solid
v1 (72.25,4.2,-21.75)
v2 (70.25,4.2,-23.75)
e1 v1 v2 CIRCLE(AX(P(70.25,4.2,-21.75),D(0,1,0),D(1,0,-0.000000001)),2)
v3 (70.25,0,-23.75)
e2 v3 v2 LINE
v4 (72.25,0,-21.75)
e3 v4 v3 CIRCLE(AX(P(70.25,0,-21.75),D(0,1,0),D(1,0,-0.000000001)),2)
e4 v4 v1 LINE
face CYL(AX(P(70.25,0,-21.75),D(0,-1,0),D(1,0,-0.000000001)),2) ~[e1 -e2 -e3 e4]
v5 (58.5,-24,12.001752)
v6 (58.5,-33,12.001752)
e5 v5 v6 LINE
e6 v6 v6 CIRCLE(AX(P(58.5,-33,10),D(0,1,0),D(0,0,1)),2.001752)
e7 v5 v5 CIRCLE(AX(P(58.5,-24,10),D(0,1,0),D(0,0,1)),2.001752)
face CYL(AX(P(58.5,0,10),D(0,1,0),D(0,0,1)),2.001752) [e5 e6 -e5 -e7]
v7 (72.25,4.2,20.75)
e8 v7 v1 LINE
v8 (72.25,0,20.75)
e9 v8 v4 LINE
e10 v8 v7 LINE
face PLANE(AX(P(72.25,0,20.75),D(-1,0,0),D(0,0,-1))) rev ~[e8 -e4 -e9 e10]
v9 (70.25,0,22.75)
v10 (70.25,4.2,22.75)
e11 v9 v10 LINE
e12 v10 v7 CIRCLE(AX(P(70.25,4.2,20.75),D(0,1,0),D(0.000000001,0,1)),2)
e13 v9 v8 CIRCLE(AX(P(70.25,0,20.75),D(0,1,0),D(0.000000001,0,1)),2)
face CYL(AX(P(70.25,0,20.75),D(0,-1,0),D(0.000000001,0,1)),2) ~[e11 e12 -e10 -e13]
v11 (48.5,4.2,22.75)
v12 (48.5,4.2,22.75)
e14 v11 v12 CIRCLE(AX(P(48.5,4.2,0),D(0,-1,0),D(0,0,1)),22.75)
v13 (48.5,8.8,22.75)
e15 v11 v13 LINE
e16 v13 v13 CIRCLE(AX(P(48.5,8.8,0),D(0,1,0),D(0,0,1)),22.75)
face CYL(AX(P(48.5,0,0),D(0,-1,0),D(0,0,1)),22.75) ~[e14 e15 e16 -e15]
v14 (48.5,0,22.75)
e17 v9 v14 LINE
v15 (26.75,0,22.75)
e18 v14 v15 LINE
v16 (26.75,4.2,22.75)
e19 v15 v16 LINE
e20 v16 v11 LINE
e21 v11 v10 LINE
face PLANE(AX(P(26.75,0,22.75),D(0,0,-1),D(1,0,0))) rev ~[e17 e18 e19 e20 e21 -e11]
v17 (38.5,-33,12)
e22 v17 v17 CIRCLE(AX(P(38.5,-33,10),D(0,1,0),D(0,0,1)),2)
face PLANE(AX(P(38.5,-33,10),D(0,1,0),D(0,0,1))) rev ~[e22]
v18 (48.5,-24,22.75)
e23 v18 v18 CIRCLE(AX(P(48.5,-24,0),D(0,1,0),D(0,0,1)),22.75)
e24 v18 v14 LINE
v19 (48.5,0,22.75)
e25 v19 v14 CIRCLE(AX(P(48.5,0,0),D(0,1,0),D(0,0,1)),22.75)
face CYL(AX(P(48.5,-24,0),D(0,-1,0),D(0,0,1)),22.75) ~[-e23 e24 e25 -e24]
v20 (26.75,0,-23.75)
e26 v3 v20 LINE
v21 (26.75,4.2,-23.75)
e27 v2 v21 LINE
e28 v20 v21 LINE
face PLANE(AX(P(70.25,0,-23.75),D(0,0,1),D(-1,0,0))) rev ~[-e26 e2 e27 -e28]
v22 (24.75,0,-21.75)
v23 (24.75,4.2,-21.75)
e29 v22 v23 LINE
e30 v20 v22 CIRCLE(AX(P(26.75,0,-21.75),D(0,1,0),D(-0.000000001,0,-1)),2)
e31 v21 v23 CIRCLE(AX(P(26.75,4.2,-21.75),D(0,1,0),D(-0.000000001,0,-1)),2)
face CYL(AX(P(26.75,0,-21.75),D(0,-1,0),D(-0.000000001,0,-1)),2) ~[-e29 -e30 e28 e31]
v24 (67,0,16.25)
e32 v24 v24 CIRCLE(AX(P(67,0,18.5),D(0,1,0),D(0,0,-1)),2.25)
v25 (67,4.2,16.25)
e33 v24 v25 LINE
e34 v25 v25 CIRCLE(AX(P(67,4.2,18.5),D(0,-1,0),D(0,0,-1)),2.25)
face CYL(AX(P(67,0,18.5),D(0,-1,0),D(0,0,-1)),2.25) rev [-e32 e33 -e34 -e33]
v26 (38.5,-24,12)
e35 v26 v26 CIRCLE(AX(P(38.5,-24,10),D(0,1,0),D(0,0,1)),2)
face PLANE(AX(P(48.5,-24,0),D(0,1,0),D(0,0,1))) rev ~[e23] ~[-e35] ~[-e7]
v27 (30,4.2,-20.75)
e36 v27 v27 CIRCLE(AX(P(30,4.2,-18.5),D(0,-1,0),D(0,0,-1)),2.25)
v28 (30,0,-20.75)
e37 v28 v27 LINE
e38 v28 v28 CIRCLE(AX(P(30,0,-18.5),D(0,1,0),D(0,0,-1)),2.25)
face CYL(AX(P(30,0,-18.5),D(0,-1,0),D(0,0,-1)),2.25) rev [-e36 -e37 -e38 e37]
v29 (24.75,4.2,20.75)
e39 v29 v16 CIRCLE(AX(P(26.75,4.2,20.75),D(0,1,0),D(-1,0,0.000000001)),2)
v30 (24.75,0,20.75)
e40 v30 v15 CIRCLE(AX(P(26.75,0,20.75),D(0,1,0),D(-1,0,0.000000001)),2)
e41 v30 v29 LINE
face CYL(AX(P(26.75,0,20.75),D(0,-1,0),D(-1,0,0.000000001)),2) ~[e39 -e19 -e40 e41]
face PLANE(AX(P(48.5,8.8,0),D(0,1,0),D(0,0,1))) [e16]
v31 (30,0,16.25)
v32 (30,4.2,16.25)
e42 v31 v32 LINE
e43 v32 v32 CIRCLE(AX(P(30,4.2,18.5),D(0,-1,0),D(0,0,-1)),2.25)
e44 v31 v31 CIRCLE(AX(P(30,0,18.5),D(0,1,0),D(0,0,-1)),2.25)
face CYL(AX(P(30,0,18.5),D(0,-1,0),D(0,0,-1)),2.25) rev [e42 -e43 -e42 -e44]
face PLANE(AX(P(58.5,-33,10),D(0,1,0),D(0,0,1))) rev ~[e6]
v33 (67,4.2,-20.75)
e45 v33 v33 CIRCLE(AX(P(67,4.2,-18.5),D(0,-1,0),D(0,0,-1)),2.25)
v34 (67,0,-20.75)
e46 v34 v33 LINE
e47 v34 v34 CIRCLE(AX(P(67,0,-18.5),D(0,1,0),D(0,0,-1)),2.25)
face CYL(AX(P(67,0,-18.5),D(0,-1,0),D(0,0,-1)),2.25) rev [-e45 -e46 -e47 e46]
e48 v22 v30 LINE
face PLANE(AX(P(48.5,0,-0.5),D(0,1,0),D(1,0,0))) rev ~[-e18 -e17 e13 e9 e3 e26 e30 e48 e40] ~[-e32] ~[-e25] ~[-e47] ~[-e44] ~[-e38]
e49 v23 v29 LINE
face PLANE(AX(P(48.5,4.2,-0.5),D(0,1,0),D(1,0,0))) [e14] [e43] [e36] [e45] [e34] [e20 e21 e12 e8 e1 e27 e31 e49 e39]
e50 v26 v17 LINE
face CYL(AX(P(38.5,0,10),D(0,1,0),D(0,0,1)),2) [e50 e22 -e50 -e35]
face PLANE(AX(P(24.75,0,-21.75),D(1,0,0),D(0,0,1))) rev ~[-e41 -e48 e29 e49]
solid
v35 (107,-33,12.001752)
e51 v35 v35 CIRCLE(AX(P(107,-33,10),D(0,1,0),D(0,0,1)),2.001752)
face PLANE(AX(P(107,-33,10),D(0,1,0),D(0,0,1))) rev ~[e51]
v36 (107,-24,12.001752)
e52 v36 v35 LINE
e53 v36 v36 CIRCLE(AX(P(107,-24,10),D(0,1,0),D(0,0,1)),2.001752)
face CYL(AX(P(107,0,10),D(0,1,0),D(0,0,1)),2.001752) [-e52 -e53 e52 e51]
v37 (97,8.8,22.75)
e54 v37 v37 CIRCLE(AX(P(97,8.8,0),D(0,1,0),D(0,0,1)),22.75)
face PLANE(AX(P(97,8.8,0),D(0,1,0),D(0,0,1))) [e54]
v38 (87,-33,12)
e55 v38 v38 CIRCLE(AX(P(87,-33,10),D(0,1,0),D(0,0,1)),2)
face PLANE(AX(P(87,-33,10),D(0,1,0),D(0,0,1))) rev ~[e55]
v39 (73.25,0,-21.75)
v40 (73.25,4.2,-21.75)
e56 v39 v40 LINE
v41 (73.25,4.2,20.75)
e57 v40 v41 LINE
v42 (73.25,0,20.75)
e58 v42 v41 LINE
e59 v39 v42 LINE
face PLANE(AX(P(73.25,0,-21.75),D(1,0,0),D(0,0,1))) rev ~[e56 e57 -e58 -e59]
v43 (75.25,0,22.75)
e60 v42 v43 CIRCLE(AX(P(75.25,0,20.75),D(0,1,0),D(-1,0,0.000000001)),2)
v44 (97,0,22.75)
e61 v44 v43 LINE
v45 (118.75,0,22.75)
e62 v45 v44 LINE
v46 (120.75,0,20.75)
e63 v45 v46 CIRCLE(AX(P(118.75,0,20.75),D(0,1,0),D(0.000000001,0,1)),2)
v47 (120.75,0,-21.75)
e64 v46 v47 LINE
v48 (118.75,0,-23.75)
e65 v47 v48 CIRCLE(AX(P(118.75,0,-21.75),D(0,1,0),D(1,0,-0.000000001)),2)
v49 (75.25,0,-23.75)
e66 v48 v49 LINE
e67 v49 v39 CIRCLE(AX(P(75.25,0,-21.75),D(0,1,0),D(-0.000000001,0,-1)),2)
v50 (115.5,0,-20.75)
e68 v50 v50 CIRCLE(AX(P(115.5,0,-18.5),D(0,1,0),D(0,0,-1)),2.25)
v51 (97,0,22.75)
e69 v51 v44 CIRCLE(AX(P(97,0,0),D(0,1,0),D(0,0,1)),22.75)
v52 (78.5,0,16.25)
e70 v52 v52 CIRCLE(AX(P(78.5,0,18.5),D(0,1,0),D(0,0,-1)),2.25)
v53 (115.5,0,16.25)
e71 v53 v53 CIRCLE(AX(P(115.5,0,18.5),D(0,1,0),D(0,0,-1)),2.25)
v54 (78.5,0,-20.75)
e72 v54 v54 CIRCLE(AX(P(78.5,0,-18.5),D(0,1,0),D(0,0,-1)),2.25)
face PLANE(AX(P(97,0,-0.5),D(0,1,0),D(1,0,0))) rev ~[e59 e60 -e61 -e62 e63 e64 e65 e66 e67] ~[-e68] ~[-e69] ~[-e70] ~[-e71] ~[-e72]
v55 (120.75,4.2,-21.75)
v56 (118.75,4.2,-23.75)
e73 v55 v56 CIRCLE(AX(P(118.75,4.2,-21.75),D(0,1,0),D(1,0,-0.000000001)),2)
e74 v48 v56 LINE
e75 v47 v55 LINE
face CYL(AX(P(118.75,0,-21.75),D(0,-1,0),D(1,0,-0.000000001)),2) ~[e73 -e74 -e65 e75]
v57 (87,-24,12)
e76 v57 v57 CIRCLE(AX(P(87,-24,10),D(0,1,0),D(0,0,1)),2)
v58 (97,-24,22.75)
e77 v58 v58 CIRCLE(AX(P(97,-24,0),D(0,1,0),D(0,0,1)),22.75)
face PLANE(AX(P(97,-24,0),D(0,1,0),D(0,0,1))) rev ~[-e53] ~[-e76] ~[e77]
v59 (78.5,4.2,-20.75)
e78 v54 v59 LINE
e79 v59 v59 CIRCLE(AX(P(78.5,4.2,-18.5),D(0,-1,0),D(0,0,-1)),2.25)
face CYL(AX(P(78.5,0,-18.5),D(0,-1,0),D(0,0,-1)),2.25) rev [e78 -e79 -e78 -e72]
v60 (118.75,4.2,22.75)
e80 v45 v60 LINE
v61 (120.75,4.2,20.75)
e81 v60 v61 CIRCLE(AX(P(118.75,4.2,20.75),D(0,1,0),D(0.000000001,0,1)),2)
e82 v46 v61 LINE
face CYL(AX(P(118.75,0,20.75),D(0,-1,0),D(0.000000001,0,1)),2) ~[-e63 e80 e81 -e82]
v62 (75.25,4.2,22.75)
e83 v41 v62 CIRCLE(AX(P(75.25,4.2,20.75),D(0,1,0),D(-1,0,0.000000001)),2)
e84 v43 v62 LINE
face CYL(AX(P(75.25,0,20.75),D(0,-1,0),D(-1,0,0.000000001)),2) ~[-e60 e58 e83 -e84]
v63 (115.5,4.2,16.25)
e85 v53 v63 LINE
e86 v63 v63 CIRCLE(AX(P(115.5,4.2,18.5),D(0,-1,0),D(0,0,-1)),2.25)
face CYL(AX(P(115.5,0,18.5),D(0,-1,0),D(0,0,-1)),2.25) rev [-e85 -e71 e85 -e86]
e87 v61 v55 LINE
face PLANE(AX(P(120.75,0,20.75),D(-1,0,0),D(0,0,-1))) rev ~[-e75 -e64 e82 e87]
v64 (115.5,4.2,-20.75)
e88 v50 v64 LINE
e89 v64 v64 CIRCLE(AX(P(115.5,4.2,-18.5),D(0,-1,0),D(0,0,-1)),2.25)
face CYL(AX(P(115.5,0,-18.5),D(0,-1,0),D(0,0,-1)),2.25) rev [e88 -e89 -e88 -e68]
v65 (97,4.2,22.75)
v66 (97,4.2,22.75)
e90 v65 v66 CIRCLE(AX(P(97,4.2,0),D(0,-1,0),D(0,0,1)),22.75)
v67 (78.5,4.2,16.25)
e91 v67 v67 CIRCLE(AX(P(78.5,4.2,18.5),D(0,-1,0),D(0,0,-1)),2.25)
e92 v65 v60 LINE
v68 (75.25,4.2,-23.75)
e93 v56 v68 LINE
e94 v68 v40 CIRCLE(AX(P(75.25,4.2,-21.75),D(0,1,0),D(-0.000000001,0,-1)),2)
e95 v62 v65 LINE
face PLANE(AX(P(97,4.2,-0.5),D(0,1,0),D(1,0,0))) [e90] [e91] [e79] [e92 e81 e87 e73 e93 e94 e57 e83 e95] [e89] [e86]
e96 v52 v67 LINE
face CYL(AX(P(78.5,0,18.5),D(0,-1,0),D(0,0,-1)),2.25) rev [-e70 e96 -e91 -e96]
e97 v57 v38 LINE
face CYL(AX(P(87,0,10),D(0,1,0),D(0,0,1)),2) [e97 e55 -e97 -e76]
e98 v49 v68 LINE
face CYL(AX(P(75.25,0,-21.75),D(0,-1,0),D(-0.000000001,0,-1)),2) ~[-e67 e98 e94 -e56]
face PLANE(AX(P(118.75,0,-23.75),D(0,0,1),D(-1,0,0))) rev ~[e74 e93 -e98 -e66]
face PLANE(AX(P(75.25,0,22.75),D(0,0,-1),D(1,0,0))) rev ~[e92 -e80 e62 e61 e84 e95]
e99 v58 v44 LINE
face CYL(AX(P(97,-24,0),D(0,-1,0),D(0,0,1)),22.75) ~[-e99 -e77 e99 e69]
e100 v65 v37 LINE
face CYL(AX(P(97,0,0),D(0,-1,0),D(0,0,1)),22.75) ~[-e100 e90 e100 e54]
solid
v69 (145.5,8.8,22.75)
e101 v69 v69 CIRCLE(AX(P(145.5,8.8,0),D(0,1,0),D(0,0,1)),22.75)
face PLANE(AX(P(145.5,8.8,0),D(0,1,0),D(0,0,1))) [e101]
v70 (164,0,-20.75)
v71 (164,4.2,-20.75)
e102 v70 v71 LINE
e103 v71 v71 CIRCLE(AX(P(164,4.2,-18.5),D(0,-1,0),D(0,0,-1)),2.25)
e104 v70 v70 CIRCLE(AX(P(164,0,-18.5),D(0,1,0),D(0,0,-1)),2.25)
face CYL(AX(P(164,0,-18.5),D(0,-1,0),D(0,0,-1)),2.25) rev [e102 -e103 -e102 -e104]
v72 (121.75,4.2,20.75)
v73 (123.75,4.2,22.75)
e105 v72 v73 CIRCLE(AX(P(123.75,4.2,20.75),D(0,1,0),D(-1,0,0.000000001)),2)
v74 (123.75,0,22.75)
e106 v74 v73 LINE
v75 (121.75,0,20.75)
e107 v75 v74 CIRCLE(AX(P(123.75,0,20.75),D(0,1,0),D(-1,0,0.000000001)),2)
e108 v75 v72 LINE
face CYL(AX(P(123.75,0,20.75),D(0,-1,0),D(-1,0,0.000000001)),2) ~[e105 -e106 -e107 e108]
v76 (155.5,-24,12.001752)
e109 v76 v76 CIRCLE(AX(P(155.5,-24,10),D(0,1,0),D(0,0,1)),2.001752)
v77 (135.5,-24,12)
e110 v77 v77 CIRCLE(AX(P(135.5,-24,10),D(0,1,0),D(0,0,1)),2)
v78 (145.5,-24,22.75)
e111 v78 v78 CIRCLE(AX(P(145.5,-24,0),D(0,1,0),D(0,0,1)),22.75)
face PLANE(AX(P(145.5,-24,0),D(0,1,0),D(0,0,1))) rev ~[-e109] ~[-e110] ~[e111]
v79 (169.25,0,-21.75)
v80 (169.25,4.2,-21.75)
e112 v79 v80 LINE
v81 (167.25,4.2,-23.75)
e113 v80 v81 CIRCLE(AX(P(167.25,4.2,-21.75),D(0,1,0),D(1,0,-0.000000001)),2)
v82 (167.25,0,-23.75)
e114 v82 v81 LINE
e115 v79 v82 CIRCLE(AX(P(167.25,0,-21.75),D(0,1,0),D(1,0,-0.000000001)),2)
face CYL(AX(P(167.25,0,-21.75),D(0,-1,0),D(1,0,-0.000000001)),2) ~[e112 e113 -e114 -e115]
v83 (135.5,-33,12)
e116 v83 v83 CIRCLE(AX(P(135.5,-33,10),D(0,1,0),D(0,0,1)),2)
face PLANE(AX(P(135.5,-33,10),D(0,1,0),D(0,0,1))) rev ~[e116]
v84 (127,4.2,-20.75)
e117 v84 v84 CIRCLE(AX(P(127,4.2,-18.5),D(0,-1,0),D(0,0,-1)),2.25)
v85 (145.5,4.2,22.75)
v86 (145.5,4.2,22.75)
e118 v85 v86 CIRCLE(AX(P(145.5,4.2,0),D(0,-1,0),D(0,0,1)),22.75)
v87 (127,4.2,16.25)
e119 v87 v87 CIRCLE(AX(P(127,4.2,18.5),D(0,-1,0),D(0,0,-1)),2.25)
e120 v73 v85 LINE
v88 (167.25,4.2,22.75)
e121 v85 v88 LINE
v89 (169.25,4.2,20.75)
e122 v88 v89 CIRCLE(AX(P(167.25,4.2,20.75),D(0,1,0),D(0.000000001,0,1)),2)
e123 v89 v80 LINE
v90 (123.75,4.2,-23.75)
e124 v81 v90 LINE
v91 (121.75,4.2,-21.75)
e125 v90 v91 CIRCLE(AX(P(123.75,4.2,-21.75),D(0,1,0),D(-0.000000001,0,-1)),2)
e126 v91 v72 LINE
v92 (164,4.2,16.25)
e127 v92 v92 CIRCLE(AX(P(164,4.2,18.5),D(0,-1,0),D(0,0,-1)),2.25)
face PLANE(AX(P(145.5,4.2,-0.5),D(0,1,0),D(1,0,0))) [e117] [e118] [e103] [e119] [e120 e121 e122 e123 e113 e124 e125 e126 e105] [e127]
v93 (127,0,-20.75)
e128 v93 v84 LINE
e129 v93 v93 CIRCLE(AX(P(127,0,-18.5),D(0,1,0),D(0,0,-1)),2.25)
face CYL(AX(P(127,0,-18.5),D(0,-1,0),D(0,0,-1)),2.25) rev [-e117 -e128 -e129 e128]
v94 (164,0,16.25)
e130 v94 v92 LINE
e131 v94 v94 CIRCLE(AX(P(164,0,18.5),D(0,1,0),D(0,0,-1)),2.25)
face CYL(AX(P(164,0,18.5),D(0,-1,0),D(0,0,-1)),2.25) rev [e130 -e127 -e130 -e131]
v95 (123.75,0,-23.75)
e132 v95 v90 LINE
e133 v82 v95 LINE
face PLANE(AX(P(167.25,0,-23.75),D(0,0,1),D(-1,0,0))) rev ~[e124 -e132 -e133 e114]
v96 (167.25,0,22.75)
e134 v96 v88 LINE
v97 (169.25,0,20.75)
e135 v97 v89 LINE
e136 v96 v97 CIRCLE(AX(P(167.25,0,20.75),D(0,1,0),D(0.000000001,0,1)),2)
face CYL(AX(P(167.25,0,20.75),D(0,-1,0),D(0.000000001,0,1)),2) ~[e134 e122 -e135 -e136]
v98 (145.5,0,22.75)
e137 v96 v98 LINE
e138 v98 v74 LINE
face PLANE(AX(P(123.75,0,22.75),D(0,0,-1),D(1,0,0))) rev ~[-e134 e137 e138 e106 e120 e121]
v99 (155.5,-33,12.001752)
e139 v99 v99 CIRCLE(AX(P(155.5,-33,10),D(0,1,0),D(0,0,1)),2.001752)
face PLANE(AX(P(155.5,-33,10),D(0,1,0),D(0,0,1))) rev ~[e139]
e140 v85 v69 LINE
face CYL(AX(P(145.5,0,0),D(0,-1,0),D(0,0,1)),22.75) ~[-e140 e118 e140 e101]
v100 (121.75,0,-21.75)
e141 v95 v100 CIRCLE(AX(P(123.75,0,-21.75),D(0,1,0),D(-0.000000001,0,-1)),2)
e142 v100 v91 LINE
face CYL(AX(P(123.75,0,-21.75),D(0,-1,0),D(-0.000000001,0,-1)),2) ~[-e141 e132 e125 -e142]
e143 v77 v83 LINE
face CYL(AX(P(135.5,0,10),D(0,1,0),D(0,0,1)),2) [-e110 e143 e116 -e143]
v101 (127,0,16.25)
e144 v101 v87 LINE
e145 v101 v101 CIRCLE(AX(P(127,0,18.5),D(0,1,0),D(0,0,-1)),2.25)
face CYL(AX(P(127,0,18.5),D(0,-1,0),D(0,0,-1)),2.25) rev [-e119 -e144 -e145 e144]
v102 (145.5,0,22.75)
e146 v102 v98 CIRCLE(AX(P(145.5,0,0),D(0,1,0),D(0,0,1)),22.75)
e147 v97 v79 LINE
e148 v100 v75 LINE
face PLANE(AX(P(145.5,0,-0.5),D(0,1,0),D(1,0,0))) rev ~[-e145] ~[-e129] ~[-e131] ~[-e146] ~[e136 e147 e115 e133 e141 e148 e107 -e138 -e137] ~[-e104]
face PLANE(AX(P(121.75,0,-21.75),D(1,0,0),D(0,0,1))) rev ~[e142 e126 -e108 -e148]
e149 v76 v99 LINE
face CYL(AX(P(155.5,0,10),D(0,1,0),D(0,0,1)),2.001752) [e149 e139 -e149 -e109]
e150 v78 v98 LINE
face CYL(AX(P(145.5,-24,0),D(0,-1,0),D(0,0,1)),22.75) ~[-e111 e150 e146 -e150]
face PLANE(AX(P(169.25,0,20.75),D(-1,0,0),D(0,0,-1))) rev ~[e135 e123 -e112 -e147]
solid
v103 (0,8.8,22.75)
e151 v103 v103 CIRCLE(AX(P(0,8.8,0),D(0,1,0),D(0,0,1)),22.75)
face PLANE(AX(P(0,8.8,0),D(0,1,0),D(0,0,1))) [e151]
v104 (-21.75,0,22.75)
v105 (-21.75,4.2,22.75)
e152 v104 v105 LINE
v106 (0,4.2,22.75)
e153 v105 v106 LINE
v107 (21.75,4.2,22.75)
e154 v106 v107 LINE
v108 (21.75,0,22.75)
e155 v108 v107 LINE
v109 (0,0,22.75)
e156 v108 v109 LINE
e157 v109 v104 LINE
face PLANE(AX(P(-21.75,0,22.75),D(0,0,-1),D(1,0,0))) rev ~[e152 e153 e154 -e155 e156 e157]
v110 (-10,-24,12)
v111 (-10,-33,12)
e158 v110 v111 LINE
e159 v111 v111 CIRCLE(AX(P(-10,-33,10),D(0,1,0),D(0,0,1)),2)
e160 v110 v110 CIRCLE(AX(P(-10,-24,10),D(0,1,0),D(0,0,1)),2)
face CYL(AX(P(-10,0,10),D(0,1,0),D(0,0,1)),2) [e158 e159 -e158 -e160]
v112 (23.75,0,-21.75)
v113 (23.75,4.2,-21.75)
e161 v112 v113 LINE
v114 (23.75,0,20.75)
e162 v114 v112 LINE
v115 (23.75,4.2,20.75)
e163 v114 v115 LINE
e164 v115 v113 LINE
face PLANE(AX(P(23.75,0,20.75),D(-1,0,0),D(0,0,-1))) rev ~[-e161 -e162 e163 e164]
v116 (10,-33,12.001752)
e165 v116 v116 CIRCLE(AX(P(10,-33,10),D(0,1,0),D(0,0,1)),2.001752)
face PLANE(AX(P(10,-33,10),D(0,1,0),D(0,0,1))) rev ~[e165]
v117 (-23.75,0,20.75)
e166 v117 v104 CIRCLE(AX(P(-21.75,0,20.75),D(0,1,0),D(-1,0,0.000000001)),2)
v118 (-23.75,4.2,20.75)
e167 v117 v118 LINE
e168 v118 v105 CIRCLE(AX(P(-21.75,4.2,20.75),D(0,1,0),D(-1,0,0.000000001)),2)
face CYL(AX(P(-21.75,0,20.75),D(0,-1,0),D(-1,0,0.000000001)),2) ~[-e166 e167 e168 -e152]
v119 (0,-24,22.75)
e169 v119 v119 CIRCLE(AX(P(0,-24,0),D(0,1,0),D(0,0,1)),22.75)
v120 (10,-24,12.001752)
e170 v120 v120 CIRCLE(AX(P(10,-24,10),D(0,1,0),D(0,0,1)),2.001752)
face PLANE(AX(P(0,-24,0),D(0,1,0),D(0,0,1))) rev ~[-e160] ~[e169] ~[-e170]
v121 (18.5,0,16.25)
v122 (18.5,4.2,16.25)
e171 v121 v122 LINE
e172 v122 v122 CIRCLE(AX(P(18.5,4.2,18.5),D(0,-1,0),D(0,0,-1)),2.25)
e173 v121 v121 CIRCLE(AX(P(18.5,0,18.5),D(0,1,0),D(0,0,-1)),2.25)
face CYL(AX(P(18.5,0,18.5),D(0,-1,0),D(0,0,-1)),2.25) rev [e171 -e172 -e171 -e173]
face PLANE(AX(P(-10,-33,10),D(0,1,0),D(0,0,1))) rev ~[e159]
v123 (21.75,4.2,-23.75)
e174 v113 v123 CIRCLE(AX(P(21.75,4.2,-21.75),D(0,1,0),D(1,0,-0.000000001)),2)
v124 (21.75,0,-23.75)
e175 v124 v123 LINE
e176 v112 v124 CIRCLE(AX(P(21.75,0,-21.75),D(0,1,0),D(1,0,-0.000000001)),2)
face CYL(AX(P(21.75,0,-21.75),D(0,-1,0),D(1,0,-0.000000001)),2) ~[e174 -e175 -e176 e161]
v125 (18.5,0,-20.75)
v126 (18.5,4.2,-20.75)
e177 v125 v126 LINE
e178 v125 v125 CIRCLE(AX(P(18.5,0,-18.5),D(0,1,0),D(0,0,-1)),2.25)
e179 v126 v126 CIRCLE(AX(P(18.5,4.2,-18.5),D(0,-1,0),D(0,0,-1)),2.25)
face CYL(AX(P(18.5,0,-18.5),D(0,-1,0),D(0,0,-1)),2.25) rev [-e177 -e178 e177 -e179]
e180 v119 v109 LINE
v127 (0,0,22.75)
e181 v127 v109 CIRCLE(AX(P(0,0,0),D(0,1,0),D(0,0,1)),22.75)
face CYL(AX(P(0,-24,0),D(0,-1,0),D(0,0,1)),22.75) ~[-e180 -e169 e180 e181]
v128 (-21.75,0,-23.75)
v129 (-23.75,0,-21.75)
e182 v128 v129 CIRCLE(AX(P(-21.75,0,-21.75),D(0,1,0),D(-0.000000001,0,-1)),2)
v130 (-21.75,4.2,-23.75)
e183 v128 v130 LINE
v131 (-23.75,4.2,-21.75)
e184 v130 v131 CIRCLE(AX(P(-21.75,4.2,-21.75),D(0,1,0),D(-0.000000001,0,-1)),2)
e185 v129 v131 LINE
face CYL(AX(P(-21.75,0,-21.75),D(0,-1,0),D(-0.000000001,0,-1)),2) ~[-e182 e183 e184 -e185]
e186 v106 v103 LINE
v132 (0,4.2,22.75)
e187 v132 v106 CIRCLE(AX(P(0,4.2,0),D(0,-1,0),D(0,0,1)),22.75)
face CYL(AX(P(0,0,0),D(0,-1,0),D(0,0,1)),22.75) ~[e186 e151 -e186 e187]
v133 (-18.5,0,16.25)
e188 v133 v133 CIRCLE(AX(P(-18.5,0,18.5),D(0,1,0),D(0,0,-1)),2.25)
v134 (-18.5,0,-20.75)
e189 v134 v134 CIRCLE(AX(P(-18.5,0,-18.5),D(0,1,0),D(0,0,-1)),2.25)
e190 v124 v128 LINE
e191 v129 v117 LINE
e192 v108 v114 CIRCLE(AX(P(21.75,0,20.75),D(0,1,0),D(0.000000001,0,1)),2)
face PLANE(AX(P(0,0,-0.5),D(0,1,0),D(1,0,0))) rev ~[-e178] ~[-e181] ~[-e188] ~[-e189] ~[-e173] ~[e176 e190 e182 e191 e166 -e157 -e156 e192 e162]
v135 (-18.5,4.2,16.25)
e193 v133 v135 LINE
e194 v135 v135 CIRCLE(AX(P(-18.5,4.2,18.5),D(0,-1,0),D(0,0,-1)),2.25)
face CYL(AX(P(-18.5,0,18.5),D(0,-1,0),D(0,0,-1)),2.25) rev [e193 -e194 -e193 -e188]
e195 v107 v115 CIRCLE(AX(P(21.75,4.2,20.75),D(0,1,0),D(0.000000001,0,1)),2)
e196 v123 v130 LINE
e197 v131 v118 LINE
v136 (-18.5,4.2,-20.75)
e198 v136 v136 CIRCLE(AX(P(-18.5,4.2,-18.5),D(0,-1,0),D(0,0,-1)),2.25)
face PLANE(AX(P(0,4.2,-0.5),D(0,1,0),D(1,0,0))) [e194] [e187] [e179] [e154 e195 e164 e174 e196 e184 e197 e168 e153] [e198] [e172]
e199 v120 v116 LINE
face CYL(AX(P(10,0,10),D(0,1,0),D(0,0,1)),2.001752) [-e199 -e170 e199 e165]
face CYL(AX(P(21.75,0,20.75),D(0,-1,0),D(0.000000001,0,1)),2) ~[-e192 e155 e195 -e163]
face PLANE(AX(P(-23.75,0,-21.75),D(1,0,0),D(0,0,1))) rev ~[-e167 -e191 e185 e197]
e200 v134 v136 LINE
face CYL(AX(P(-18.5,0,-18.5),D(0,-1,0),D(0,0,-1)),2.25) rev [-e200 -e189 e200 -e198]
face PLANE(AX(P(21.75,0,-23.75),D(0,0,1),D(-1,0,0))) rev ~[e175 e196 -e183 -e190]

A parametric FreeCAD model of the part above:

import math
import FreeCAD as App
import Part
import Sketcher

V = App.Vector

doc = App.newDocument("Part")
params = doc.addObject("Spreadsheet::Sheet", "Params")
for row, (alias, value) in enumerate([
    ("sketch1_diameter", "45.5 mm"),
    ("pad1_length", "8.8 mm"),
    ("sketch2_diameter", "45.5 mm"),
    ("pad2_length", "8.8 mm"),
    ("sketch3_diameter", "45.5 mm"),
    ("pad3_length", "8.8 mm"),
    ("sketch4_diameter", "45.5 mm"),
    ("pad4_length", "8.8 mm"),
    ("sketch5_radius", "2 mm"),
    ("sketch5_width", "43.5 mm"),
    ("sketch5_height", "42.5 mm"),
    ("pad5_length", "4.2 mm"),
    ("sketch6_diameter", "4.5 mm"),
    ("sketch7_diameter", "4.5 mm"),
    ("sketch8_diameter", "4.5 mm"),
    ("sketch9_diameter", "4.5 mm"),
    ("sketch10_diameter", "4.5 mm"),
    ("sketch11_diameter", "4.5 mm"),
    ("sketch12_diameter", "4.5 mm"),
    ("sketch13_diameter", "4.5 mm"),
    ("sketch14_diameter", "4.5 mm"),
    ("sketch15_diameter", "4.5 mm"),
    ("sketch16_diameter", "4.5 mm"),
    ("sketch17_diameter", "4.5 mm"),
    ("sketch18_diameter", "4.5 mm"),
    ("sketch19_diameter", "4.5 mm"),
    ("sketch20_diameter", "4.5 mm"),
    ("sketch21_diameter", "4.5 mm"),
    ("sketch22_diameter", "45.5 mm"),
    ("pad6_length", "24 mm"),
    ("sketch23_diameter", "4 mm"),
    ("pad7_length", "33 mm"),
], start=1):
    params.set(f"A{row}", alias)
    params.set(f"B{row}", "=" + value)
    params.setAlias(f"B{row}", alias)

body = doc.addObject("PartDesign::Body", "Body")

# Sketch on XZ plane
sketch1 = body.newObject("Sketcher::SketchObject", "Sketch")
sketch1.AttachmentSupport = (doc.getObject("XZ_Plane"), [""])
sketch1.MapMode = "FlatFace"
sketch1.addGeometry(Part.Circle(V(0, 0, 0), V(0, 0, 1), 23), False)
sketch1.addConstraint([
    Sketcher.Constraint("Coincident", 0, 3, -1, 1),
    Sketcher.Constraint("Diameter", 0, 45.5),
])
sketch1.setExpression("Constraints[1]", "Params.sketch1_diameter")
pad1 = body.newObject("PartDesign::Pad", "Pad")
pad1.Profile = sketch1
pad1.setExpression("Length", "Params.pad1_length")
pad1.Reversed = True
body2 = doc.addObject("PartDesign::Body", "Body001")

# Sketch on XZ plane
sketch2 = body2.newObject("Sketcher::SketchObject", "Sketch001")
sketch2.AttachmentSupport = (doc.getObject("XZ_Plane001"), [""])
sketch2.MapMode = "FlatFace"
sketch2.addGeometry(Part.Circle(V(48, 0, 0), V(0, 0, 1), 23), False)
sketch2.addConstraint([
    Sketcher.Constraint("PointOnObject", 0, 3, -1),
    Sketcher.Constraint("Diameter", 0, 45.5),
    Sketcher.Constraint("DistanceX", -1, 1, 0, 3, 48.5),
])
sketch2.setExpression("Constraints[1]", "Params.sketch2_diameter")
pad2 = body2.newObject("PartDesign::Pad", "Pad001")
pad2.Profile = sketch2
pad2.setExpression("Length", "Params.pad2_length")
pad2.Reversed = True
body3 = doc.addObject("PartDesign::Body", "Body002")

# Sketch on XZ plane
sketch3 = body3.newObject("Sketcher::SketchObject", "Sketch002")
sketch3.AttachmentSupport = (doc.getObject("XZ_Plane002"), [""])
sketch3.MapMode = "FlatFace"
sketch3.addGeometry(Part.Circle(V(97, 0, 0), V(0, 0, 1), 23), False)
sketch3.addConstraint([
    Sketcher.Constraint("PointOnObject", 0, 3, -1),
    Sketcher.Constraint("Diameter", 0, 45.5),
    Sketcher.Constraint("DistanceX", -1, 1, 0, 3, 97.0),
])
sketch3.setExpression("Constraints[1]", "Params.sketch3_diameter")
pad3 = body3.newObject("PartDesign::Pad", "Pad002")
pad3.Profile = sketch3
pad3.setExpression("Length", "Params.pad3_length")
pad3.Reversed = True
body4 = doc.addObject("PartDesign::Body", "Body003")

# Sketch on XZ plane
sketch4 = body4.newObject("Sketcher::SketchObject", "Sketch003")
sketch4.AttachmentSupport = (doc.getObject("XZ_Plane003"), [""])
sketch4.MapMode = "FlatFace"
sketch4.addGeometry(Part.Circle(V(146, 0, 0), V(0, 0, 1), 23), False)
sketch4.addConstraint([
    Sketcher.Constraint("PointOnObject", 0, 3, -1),
    Sketcher.Constraint("Diameter", 0, 45.5),
    Sketcher.Constraint("DistanceX", -1, 1, 0, 3, 145.5),
])
sketch4.setExpression("Constraints[1]", "Params.sketch4_diameter")
pad4 = body4.newObject("PartDesign::Pad", "Pad003")
pad4.Profile = sketch4
pad4.setExpression("Length", "Params.pad4_length")
pad4.Reversed = True
body.AllowCompound = True
doc.recompute()

boolean = body.newObject("PartDesign::Boolean", "Boolean")
boolean.Type = "Fuse"
boolean.addObjects([body2])
doc.recompute()

boolean2 = body.newObject("PartDesign::Boolean", "Boolean001")
boolean2.Type = "Fuse"
boolean2.addObjects([body3])
doc.recompute()

boolean3 = body.newObject("PartDesign::Boolean", "Boolean002")
boolean3.Type = "Fuse"
boolean3.addObjects([body4])

# Sketch on XZ plane
sketch5 = body.newObject("Sketcher::SketchObject", "Sketch004")
sketch5.AttachmentSupport = (doc.getObject("XZ_Plane"), [""])
sketch5.MapMode = "FlatFace"
sketch5.addGeometry([
    Part.LineSegment(V(21.8, -23.8, 0), V(-21.8, -23.8, 0)),  # 0
    Part.ArcOfCircle(Part.Circle(V(-21.7, -21.7, 0), V(0, 0, 1), 2), math.radians(-180), math.radians(-90)),  # 1
    Part.LineSegment(V(-23.8, -21.8, 0), V(-23.8, 20.8, 0)),  # 2
    Part.ArcOfCircle(Part.Circle(V(-21.7, 20.7, 0), V(0, 0, 1), 2), math.radians(90), math.radians(180)),  # 3
    Part.LineSegment(V(-21.8, 22.8, 0), V(21.8, 22.8, 0)),  # 4
    Part.ArcOfCircle(Part.Circle(V(21.7, 20.7, 0), V(0, 0, 1), 2), math.radians(0), math.radians(90)),  # 5
    Part.LineSegment(V(23.8, 20.8, 0), V(23.8, -21.8, 0)),  # 6
    Part.ArcOfCircle(Part.Circle(V(21.7, -21.7, 0), V(0, 0, 1), 2), math.radians(-90), math.radians(0)),  # 7
    Part.LineSegment(V(24.8, -21.8, 0), V(24.8, 20.8, 0)),  # 8
    Part.ArcOfCircle(Part.Circle(V(26.8, 20.7, 0), V(0, 0, 1), 2), math.radians(90), math.radians(180)),  # 9
    Part.LineSegment(V(26.8, 22.8, 0), V(70.2, 22.8, 0)),  # 10
    Part.ArcOfCircle(Part.Circle(V(70.2, 20.7, 0), V(0, 0, 1), 2), math.radians(0), math.radians(90)),  # 11
    Part.LineSegment(V(72.2, 20.8, 0), V(72.2, -21.8, 0)),  # 12
    Part.ArcOfCircle(Part.Circle(V(70.2, -21.7, 0), V(0, 0, 1), 2), math.radians(-90), math.radians(0)),  # 13
    Part.LineSegment(V(70.2, -23.8, 0), V(26.8, -23.8, 0)),  # 14
    Part.ArcOfCircle(Part.Circle(V(26.8, -21.7, 0), V(0, 0, 1), 2), math.radians(-180), math.radians(-90)),  # 15
    Part.LineSegment(V(73.2, -21.8, 0), V(73.2, 20.8, 0)),  # 16
    Part.ArcOfCircle(Part.Circle(V(75.3, 20.7, 0), V(0, 0, 1), 2), math.radians(90), math.radians(180)),  # 17
    Part.LineSegment(V(75.2, 22.8, 0), V(118.8, 22.8, 0)),  # 18
    Part.ArcOfCircle(Part.Circle(V(118.7, 20.7, 0), V(0, 0, 1), 2), math.radians(0), math.radians(90)),  # 19
    Part.LineSegment(V(120.8, 20.8, 0), V(120.8, -21.8, 0)),  # 20
    Part.ArcOfCircle(Part.Circle(V(118.7, -21.7, 0), V(0, 0, 1), 2), math.radians(-90), math.radians(0)),  # 21
    Part.LineSegment(V(118.8, -23.8, 0), V(75.2, -23.8, 0)),  # 22
    Part.ArcOfCircle(Part.Circle(V(75.3, -21.7, 0), V(0, 0, 1), 2), math.radians(-180), math.radians(-90)),  # 23
    Part.LineSegment(V(121.8, -21.8, 0), V(121.8, 20.8, 0)),  # 24
    Part.ArcOfCircle(Part.Circle(V(123.8, 20.7, 0), V(0, 0, 1), 2), math.radians(90), math.radians(180)),  # 25
    Part.LineSegment(V(123.8, 22.8, 0), V(167.2, 22.8, 0)),  # 26
    Part.ArcOfCircle(Part.Circle(V(167.2, 20.7, 0), V(0, 0, 1), 2), math.radians(0), math.radians(90)),  # 27
    Part.LineSegment(V(169.2, 20.8, 0), V(169.2, -21.8, 0)),  # 28
    Part.ArcOfCircle(Part.Circle(V(167.2, -21.7, 0), V(0, 0, 1), 2), math.radians(-90), math.radians(0)),  # 29
    Part.LineSegment(V(167.2, -23.8, 0), V(123.8, -23.8, 0)),  # 30
    Part.ArcOfCircle(Part.Circle(V(123.8, -21.7, 0), V(0, 0, 1), 2), math.radians(-180), math.radians(-90)),  # 31
], False)
sketch5.addConstraint([
    Sketcher.Constraint("Tangent", 0, 2, 1, 2),
    Sketcher.Constraint("Tangent", 1, 1, 2, 1),
    Sketcher.Constraint("Tangent", 2, 2, 3, 2),
    Sketcher.Constraint("Tangent", 3, 1, 4, 1),
    Sketcher.Constraint("Tangent", 4, 2, 5, 2),
    Sketcher.Constraint("Tangent", 5, 1, 6, 1),
    Sketcher.Constraint("Tangent", 6, 2, 7, 2),
    Sketcher.Constraint("Tangent", 7, 1, 0, 1),
    Sketcher.Constraint("Tangent", 8, 2, 9, 2),
    Sketcher.Constraint("Tangent", 9, 1, 10, 1),
    Sketcher.Constraint("Tangent", 10, 2, 11, 2),
    Sketcher.Constraint("Tangent", 11, 1, 12, 1),
    Sketcher.Constraint("Tangent", 12, 2, 13, 2),
    Sketcher.Constraint("Tangent", 13, 1, 14, 1),
    Sketcher.Constraint("Tangent", 14, 2, 15, 2),
    Sketcher.Constraint("Tangent", 15, 1, 8, 1),
    Sketcher.Constraint("Tangent", 16, 2, 17, 2),
    Sketcher.Constraint("Tangent", 17, 1, 18, 1),
    Sketcher.Constraint("Tangent", 18, 2, 19, 2),
    Sketcher.Constraint("Tangent", 19, 1, 20, 1),
    Sketcher.Constraint("Tangent", 20, 2, 21, 2),
    Sketcher.Constraint("Tangent", 21, 1, 22, 1),
    Sketcher.Constraint("Tangent", 22, 2, 23, 2),
    Sketcher.Constraint("Tangent", 23, 1, 16, 1),
    Sketcher.Constraint("Tangent", 24, 2, 25, 2),
    Sketcher.Constraint("Tangent", 25, 1, 26, 1),
    Sketcher.Constraint("Tangent", 26, 2, 27, 2),
    Sketcher.Constraint("Tangent", 27, 1, 28, 1),
    Sketcher.Constraint("Tangent", 28, 2, 29, 2),
    Sketcher.Constraint("Tangent", 29, 1, 30, 1),
    Sketcher.Constraint("Tangent", 30, 2, 31, 2),
    Sketcher.Constraint("Tangent", 31, 1, 24, 1),
    Sketcher.Constraint("Horizontal", 0),
    Sketcher.Constraint("Vertical", 2),
    Sketcher.Constraint("Horizontal", 4),
    Sketcher.Constraint("Vertical", 6),
    Sketcher.Constraint("Vertical", 8),
    Sketcher.Constraint("Horizontal", 10),
    Sketcher.Constraint("Vertical", 12),
    Sketcher.Constraint("Horizontal", 14),
    Sketcher.Constraint("Vertical", 16),
    Sketcher.Constraint("Horizontal", 18),
    Sketcher.Constraint("Vertical", 20),
    Sketcher.Constraint("Horizontal", 22),
    Sketcher.Constraint("Vertical", 24),
    Sketcher.Constraint("Horizontal", 26),
    Sketcher.Constraint("Vertical", 28),
    Sketcher.Constraint("Horizontal", 30),
    Sketcher.Constraint("Equal", 1, 3),
    Sketcher.Constraint("Equal", 3, 5),
    Sketcher.Constraint("Equal", 5, 7),
    Sketcher.Constraint("Equal", 7, 9),
    Sketcher.Constraint("Equal", 9, 11),
    Sketcher.Constraint("Equal", 11, 13),
    Sketcher.Constraint("Equal", 13, 15),
    Sketcher.Constraint("Equal", 15, 17),
    Sketcher.Constraint("Equal", 17, 19),
    Sketcher.Constraint("Equal", 19, 21),
    Sketcher.Constraint("Equal", 21, 23),
    Sketcher.Constraint("Equal", 23, 25),
    Sketcher.Constraint("Equal", 25, 27),
    Sketcher.Constraint("Equal", 27, 29),
    Sketcher.Constraint("Equal", 29, 31),
    Sketcher.Constraint("Horizontal", 5, 3, 9, 3),
    Sketcher.Constraint("Horizontal", 7, 3, 13, 3),
    Sketcher.Constraint("Horizontal", 11, 3, 17, 3),
    Sketcher.Constraint("Horizontal", 15, 3, 21, 3),
    Sketcher.Constraint("Horizontal", 19, 3, 25, 3),
    Sketcher.Constraint("Horizontal", 23, 3, 29, 3),
    Sketcher.Constraint("Equal", 4, 10),
    Sketcher.Constraint("Equal", 14, 18),
    Sketcher.Constraint("Equal", 22, 26),
    Sketcher.Constraint("Radius", 1, 2.0),
    Sketcher.Constraint("DistanceX", 0, 2, 0, 1, 43.5),
    Sketcher.Constraint("DistanceY", 2, 1, 2, 2, 42.5),
    Sketcher.Constraint("DistanceX", 5, 3, 9, 3, 5.0),
    Sketcher.Constraint("DistanceX", 11, 3, 17, 3, 5.0),
    Sketcher.Constraint("DistanceX", 19, 3, 25, 3, 5.0),
    Sketcher.Constraint("DistanceX", 1, 3, -1, 1, 21.75),
    Sketcher.Constraint("DistanceY", 1, 3, -1, 1, 21.75),
])
sketch5.setExpression("Constraints[72]", "Params.sketch5_radius")
sketch5.setExpression("Constraints[73]", "Params.sketch5_width")
sketch5.setExpression("Constraints[74]", "Params.sketch5_height")
pad5 = body.newObject("PartDesign::Pad", "Pad004")
pad5.Profile = sketch5
pad5.setExpression("Length", "Params.pad5_length")
pad5.Reversed = True

# Sketch on XZ plane
sketch6 = body.newObject("Sketcher::SketchObject", "Sketch005")
sketch6.AttachmentSupport = (doc.getObject("XZ_Plane"), [""])
sketch6.MapMode = "FlatFace"
sketch6.addGeometry(Part.Circle(V(18.5, -18.5, 0), V(0, 0, 1), 2.2), False)
sketch6.addConstraint([
    Sketcher.Constraint("Diameter", 0, 4.5),
    Sketcher.Constraint("DistanceX", -1, 1, 0, 3, 18.5),
    Sketcher.Constraint("DistanceY", 0, 3, -1, 1, 18.5),
])
sketch6.setExpression("Constraints[0]", "Params.sketch6_diameter")
pocket1 = body.newObject("PartDesign::Pocket", "Pocket")
pocket1.Profile = sketch6
pocket1.Type = "UpToFirst"

# Sketch on XZ plane
sketch7 = body.newObject("Sketcher::SketchObject", "Sketch006")
sketch7.AttachmentSupport = (doc.getObject("XZ_Plane"), [""])
sketch7.MapMode = "FlatFace"
sketch7.addGeometry(Part.Circle(V(18.5, 18.5, 0), V(0, 0, 1), 2.2), False)
sketch7.addConstraint([
    Sketcher.Constraint("Diameter", 0, 4.5),
    Sketcher.Constraint("DistanceX", -1, 1, 0, 3, 18.5),
    Sketcher.Constraint("DistanceY", -1, 1, 0, 3, 18.5),
])
sketch7.setExpression("Constraints[0]", "Params.sketch7_diameter")
pocket2 = body.newObject("PartDesign::Pocket", "Pocket001")
pocket2.Profile = sketch7
pocket2.Type = "UpToFirst"

# Sketch on XZ plane
sketch8 = body.newObject("Sketcher::SketchObject", "Sketch007")
sketch8.AttachmentSupport = (doc.getObject("XZ_Plane"), [""])
sketch8.MapMode = "FlatFace"
sketch8.addGeometry(Part.Circle(V(-18.5, -18.5, 0), V(0, 0, 1), 2.2), False)
sketch8.addConstraint([
    Sketcher.Constraint("Diameter", 0, 4.5),
    Sketcher.Constraint("DistanceX", 0, 3, -1, 1, 18.5),
    Sketcher.Constraint("DistanceY", 0, 3, -1, 1, 18.5),
])
sketch8.setExpression("Constraints[0]", "Params.sketch8_diameter")
pocket3 = body.newObject("PartDesign::Pocket", "Pocket002")
pocket3.Profile = sketch8
pocket3.Type = "UpToFirst"

# Sketch on XZ plane
sketch9 = body.newObject("Sketcher::SketchObject", "Sketch008")
sketch9.AttachmentSupport = (doc.getObject("XZ_Plane"), [""])
sketch9.MapMode = "FlatFace"
sketch9.addGeometry(Part.Circle(V(-18.5, 18.5, 0), V(0, 0, 1), 2.2), False)
sketch9.addConstraint([
    Sketcher.Constraint("Diameter", 0, 4.5),
    Sketcher.Constraint("DistanceX", 0, 3, -1, 1, 18.5),
    Sketcher.Constraint("DistanceY", -1, 1, 0, 3, 18.5),
])
sketch9.setExpression("Constraints[0]", "Params.sketch9_diameter")
pocket4 = body.newObject("PartDesign::Pocket", "Pocket003")
pocket4.Profile = sketch9
pocket4.Type = "UpToFirst"

# Sketch on XZ plane
sketch10 = body.newObject("Sketcher::SketchObject", "Sketch009")
sketch10.AttachmentSupport = (doc.getObject("XZ_Plane"), [""])
sketch10.MapMode = "FlatFace"
sketch10.addGeometry(Part.Circle(V(67, 18.5, 0), V(0, 0, 1), 2.2), False)
sketch10.addConstraint([
    Sketcher.Constraint("Diameter", 0, 4.5),
    Sketcher.Constraint("DistanceX", -1, 1, 0, 3, 67.0),
    Sketcher.Constraint("DistanceY", -1, 1, 0, 3, 18.5),
])
sketch10.setExpression("Constraints[0]", "Params.sketch10_diameter")
pocket5 = body.newObject("PartDesign::Pocket", "Pocket004")
pocket5.Profile = sketch10
pocket5.Type = "UpToFirst"

# Sketch on XZ plane
sketch11 = body.newObject("Sketcher::SketchObject", "Sketch010")
sketch11.AttachmentSupport = (doc.getObject("XZ_Plane"), [""])
sketch11.MapMode = "FlatFace"
sketch11.addGeometry(Part.Circle(V(67, -18.5, 0), V(0, 0, 1), 2.2), False)
sketch11.addConstraint([
    Sketcher.Constraint("Diameter", 0, 4.5),
    Sketcher.Constraint("DistanceX", -1, 1, 0, 3, 67.0),
    Sketcher.Constraint("DistanceY", 0, 3, -1, 1, 18.5),
])
sketch11.setExpression("Constraints[0]", "Params.sketch11_diameter")
pocket6 = body.newObject("PartDesign::Pocket", "Pocket005")
pocket6.Profile = sketch11
pocket6.Type = "UpToFirst"

# Sketch on XZ plane
sketch12 = body.newObject("Sketcher::SketchObject", "Sketch011")
sketch12.AttachmentSupport = (doc.getObject("XZ_Plane"), [""])
sketch12.MapMode = "FlatFace"
sketch12.addGeometry(Part.Circle(V(30, -18.5, 0), V(0, 0, 1), 2.2), False)
sketch12.addConstraint([
    Sketcher.Constraint("Diameter", 0, 4.5),
    Sketcher.Constraint("DistanceX", -1, 1, 0, 3, 30.0),
    Sketcher.Constraint("DistanceY", 0, 3, -1, 1, 18.5),
])
sketch12.setExpression("Constraints[0]", "Params.sketch12_diameter")
pocket7 = body.newObject("PartDesign::Pocket", "Pocket006")
pocket7.Profile = sketch12
pocket7.Type = "UpToFirst"

# Sketch on XZ plane
sketch13 = body.newObject("Sketcher::SketchObject", "Sketch012")
sketch13.AttachmentSupport = (doc.getObject("XZ_Plane"), [""])
sketch13.MapMode = "FlatFace"
sketch13.addGeometry(Part.Circle(V(30, 18.5, 0), V(0, 0, 1), 2.2), False)
sketch13.addConstraint([
    Sketcher.Constraint("Diameter", 0, 4.5),
    Sketcher.Constraint("DistanceX", -1, 1, 0, 3, 30.0),
    Sketcher.Constraint("DistanceY", -1, 1, 0, 3, 18.5),
])
sketch13.setExpression("Constraints[0]", "Params.sketch13_diameter")
pocket8 = body.newObject("PartDesign::Pocket", "Pocket007")
pocket8.Profile = sketch13
pocket8.Type = "UpToFirst"

# Sketch on XZ plane
sketch14 = body.newObject("Sketcher::SketchObject", "Sketch013")
sketch14.AttachmentSupport = (doc.getObject("XZ_Plane"), [""])
sketch14.MapMode = "FlatFace"
sketch14.addGeometry(Part.Circle(V(115.5, 18.5, 0), V(0, 0, 1), 2.2), False)
sketch14.addConstraint([
    Sketcher.Constraint("Diameter", 0, 4.5),
    Sketcher.Constraint("DistanceX", -1, 1, 0, 3, 115.5),
    Sketcher.Constraint("DistanceY", -1, 1, 0, 3, 18.5),
])
sketch14.setExpression("Constraints[0]", "Params.sketch14_diameter")
pocket9 = body.newObject("PartDesign::Pocket", "Pocket008")
pocket9.Profile = sketch14
pocket9.Type = "UpToFirst"

# Sketch on XZ plane
sketch15 = body.newObject("Sketcher::SketchObject", "Sketch014")
sketch15.AttachmentSupport = (doc.getObject("XZ_Plane"), [""])
sketch15.MapMode = "FlatFace"
sketch15.addGeometry(Part.Circle(V(115.5, -18.5, 0), V(0, 0, 1), 2.2), False)
sketch15.addConstraint([
    Sketcher.Constraint("Diameter", 0, 4.5),
    Sketcher.Constraint("DistanceX", -1, 1, 0, 3, 115.5),
    Sketcher.Constraint("DistanceY", 0, 3, -1, 1, 18.5),
])
sketch15.setExpression("Constraints[0]", "Params.sketch15_diameter")
pocket10 = body.newObject("PartDesign::Pocket", "Pocket009")
pocket10.Profile = sketch15
pocket10.Type = "UpToFirst"

# Sketch on XZ plane
sketch16 = body.newObject("Sketcher::SketchObject", "Sketch015")
sketch16.AttachmentSupport = (doc.getObject("XZ_Plane"), [""])
sketch16.MapMode = "FlatFace"
sketch16.addGeometry(Part.Circle(V(78.5, -18.5, 0), V(0, 0, 1), 2.2), False)
sketch16.addConstraint([
    Sketcher.Constraint("Diameter", 0, 4.5),
    Sketcher.Constraint("DistanceX", -1, 1, 0, 3, 78.5),
    Sketcher.Constraint("DistanceY", 0, 3, -1, 1, 18.5),
])
sketch16.setExpression("Constraints[0]", "Params.sketch16_diameter")
pocket11 = body.newObject("PartDesign::Pocket", "Pocket010")
pocket11.Profile = sketch16
pocket11.Type = "UpToFirst"

# Sketch on XZ plane
sketch17 = body.newObject("Sketcher::SketchObject", "Sketch016")
sketch17.AttachmentSupport = (doc.getObject("XZ_Plane"), [""])
sketch17.MapMode = "FlatFace"
sketch17.addGeometry(Part.Circle(V(78.5, 18.5, 0), V(0, 0, 1), 2.2), False)
sketch17.addConstraint([
    Sketcher.Constraint("Diameter", 0, 4.5),
    Sketcher.Constraint("DistanceX", -1, 1, 0, 3, 78.5),
    Sketcher.Constraint("DistanceY", -1, 1, 0, 3, 18.5),
])
sketch17.setExpression("Constraints[0]", "Params.sketch17_diameter")
pocket12 = body.newObject("PartDesign::Pocket", "Pocket011")
pocket12.Profile = sketch17
pocket12.Type = "UpToFirst"

# Sketch on XZ plane
sketch18 = body.newObject("Sketcher::SketchObject", "Sketch017")
sketch18.AttachmentSupport = (doc.getObject("XZ_Plane"), [""])
sketch18.MapMode = "FlatFace"
sketch18.addGeometry(Part.Circle(V(164, 18.5, 0), V(0, 0, 1), 2.2), False)
sketch18.addConstraint([
    Sketcher.Constraint("Diameter", 0, 4.5),
    Sketcher.Constraint("DistanceX", -1, 1, 0, 3, 164.0),
    Sketcher.Constraint("DistanceY", -1, 1, 0, 3, 18.5),
])
sketch18.setExpression("Constraints[0]", "Params.sketch18_diameter")
pocket13 = body.newObject("PartDesign::Pocket", "Pocket012")
pocket13.Profile = sketch18
pocket13.Type = "UpToFirst"

# Sketch on XZ plane
sketch19 = body.newObject("Sketcher::SketchObject", "Sketch018")
sketch19.AttachmentSupport = (doc.getObject("XZ_Plane"), [""])
sketch19.MapMode = "FlatFace"
sketch19.addGeometry(Part.Circle(V(164, -18.5, 0), V(0, 0, 1), 2.2), False)
sketch19.addConstraint([
    Sketcher.Constraint("Diameter", 0, 4.5),
    Sketcher.Constraint("DistanceX", -1, 1, 0, 3, 164.0),
    Sketcher.Constraint("DistanceY", 0, 3, -1, 1, 18.5),
])
sketch19.setExpression("Constraints[0]", "Params.sketch19_diameter")
pocket14 = body.newObject("PartDesign::Pocket", "Pocket013")
pocket14.Profile = sketch19
pocket14.Type = "UpToFirst"

# Sketch on XZ plane
sketch20 = body.newObject("Sketcher::SketchObject", "Sketch019")
sketch20.AttachmentSupport = (doc.getObject("XZ_Plane"), [""])
sketch20.MapMode = "FlatFace"
sketch20.addGeometry(Part.Circle(V(127, -18.5, 0), V(0, 0, 1), 2.2), False)
sketch20.addConstraint([
    Sketcher.Constraint("Diameter", 0, 4.5),
    Sketcher.Constraint("DistanceX", -1, 1, 0, 3, 127.0),
    Sketcher.Constraint("DistanceY", 0, 3, -1, 1, 18.5),
])
sketch20.setExpression("Constraints[0]", "Params.sketch20_diameter")
pocket15 = body.newObject("PartDesign::Pocket", "Pocket014")
pocket15.Profile = sketch20
pocket15.Type = "UpToFirst"

# Sketch on XZ plane
sketch21 = body.newObject("Sketcher::SketchObject", "Sketch020")
sketch21.AttachmentSupport = (doc.getObject("XZ_Plane"), [""])
sketch21.MapMode = "FlatFace"
sketch21.addGeometry(Part.Circle(V(127, 18.5, 0), V(0, 0, 1), 2.2), False)
sketch21.addConstraint([
    Sketcher.Constraint("Diameter", 0, 4.5),
    Sketcher.Constraint("DistanceX", -1, 1, 0, 3, 127.0),
    Sketcher.Constraint("DistanceY", -1, 1, 0, 3, 18.5),
])
sketch21.setExpression("Constraints[0]", "Params.sketch21_diameter")
pocket16 = body.newObject("PartDesign::Pocket", "Pocket015")
pocket16.Profile = sketch21
pocket16.Type = "UpToFirst"

# Sketch on XZ plane
sketch22 = body.newObject("Sketcher::SketchObject", "Sketch021")
sketch22.AttachmentSupport = (doc.getObject("XZ_Plane"), [""])
sketch22.MapMode = "FlatFace"
sketch22.AttachmentOffset = App.Placement(V(0, 0, 24), App.Rotation())
sketch22.addGeometry([
    Part.Circle(V(0, 0, 0), V(0, 0, 1), 23),
    Part.Circle(V(48, 0, 0), V(0, 0, 1), 23),
    Part.Circle(V(97, 0, 0), V(0, 0, 1), 23),
    Part.Circle(V(146, 0, 0), V(0, 0, 1), 23),
], False)
sketch22.addConstraint([
    Sketcher.Constraint("Coincident", 0, 3, -1, 1),
    Sketcher.Constraint("Equal", 0, 1),
    Sketcher.Constraint("Equal", 1, 2),
    Sketcher.Constraint("Equal", 2, 3),
    Sketcher.Constraint("PointOnObject", 1, 3, -1),
    Sketcher.Constraint("PointOnObject", 2, 3, -1),
    Sketcher.Constraint("PointOnObject", 3, 3, -1),
    Sketcher.Constraint("Diameter", 0, 45.5),
    Sketcher.Constraint("DistanceX", -1, 1, 2, 3, 97.0),
    Sketcher.Constraint("DistanceX", 1, 3, 3, 3, 97.0),
    Sketcher.Constraint("DistanceX", -1, 1, 1, 3, 48.5),
])
sketch22.setExpression("Constraints[7]", "Params.sketch22_diameter")
pad6 = body.newObject("PartDesign::Pad", "Pad005")
pad6.Profile = sketch22
pad6.setExpression("Length", "Params.pad6_length")
pad6.Reversed = True

# Sketch on XZ plane
sketch23 = body.newObject("Sketcher::SketchObject", "Sketch022")
sketch23.AttachmentSupport = (doc.getObject("XZ_Plane"), [""])
sketch23.MapMode = "FlatFace"
sketch23.addGeometry([
    Part.Circle(V(-10, 10, 0), V(0, 0, 1), 2),  # 0
    Part.Circle(V(10, 10, 0), V(0, 0, 1), 2),  # 1
    Part.Circle(V(38.5, 10, 0), V(0, 0, 1), 2),  # 2
    Part.Circle(V(58.5, 10, 0), V(0, 0, 1), 2),  # 3
    Part.Circle(V(87, 10, 0), V(0, 0, 1), 2),  # 4
    Part.Circle(V(107, 10, 0), V(0, 0, 1), 2),  # 5
    Part.Circle(V(135.5, 10, 0), V(0, 0, 1), 2),  # 6
    Part.Circle(V(155.5, 10, 0), V(0, 0, 1), 2),  # 7
], False)
sketch23.addConstraint([
    Sketcher.Constraint("Equal", 0, 2),
    Sketcher.Constraint("Equal", 1, 3),
    Sketcher.Constraint("Equal", 2, 4),
    Sketcher.Constraint("Equal", 3, 5),
    Sketcher.Constraint("Equal", 4, 6),
    Sketcher.Constraint("Equal", 5, 7),
    Sketcher.Constraint("Symmetric", 0, 3, 1, 3, -2),
    Sketcher.Constraint("Horizontal", 1, 3, 2, 3),
    Sketcher.Constraint("Horizontal", 2, 3, 3, 3),
    Sketcher.Constraint("Horizontal", 3, 3, 4, 3),
    Sketcher.Constraint("Horizontal", 4, 3, 5, 3),
    Sketcher.Constraint("Horizontal", 5, 3, 6, 3),
    Sketcher.Constraint("Horizontal", 6, 3, 7, 3),
    Sketcher.Constraint("Diameter", 0, 4.0),
    Sketcher.Constraint("DistanceX", 0, 3, -1, 1, 10.0),
    Sketcher.Constraint("DistanceY", -1, 1, 0, 3, 10.0),
    Sketcher.Constraint("DistanceX", -1, 1, 4, 3, 87.0),
    Sketcher.Constraint("DistanceX", -1, 1, 5, 3, 107.0),
    Sketcher.Constraint("DistanceX", 2, 3, 3, 3, 20.0),
    Sketcher.Constraint("DistanceX", 3, 3, 6, 3, 77.0),
    Sketcher.Constraint("DistanceX", 6, 3, 7, 3, 20.0),
    Sketcher.Constraint("DistanceX", -1, 1, 2, 3, 38.5),
    Sketcher.Constraint("Diameter", 1, 4.003503),
])
sketch23.setExpression("Constraints[13]", "Params.sketch23_diameter")
pad7 = body.newObject("PartDesign::Pad", "Pad006")
pad7.Profile = sketch23
pad7.setExpression("Length", "Params.pad7_length")

doc.recompute()
